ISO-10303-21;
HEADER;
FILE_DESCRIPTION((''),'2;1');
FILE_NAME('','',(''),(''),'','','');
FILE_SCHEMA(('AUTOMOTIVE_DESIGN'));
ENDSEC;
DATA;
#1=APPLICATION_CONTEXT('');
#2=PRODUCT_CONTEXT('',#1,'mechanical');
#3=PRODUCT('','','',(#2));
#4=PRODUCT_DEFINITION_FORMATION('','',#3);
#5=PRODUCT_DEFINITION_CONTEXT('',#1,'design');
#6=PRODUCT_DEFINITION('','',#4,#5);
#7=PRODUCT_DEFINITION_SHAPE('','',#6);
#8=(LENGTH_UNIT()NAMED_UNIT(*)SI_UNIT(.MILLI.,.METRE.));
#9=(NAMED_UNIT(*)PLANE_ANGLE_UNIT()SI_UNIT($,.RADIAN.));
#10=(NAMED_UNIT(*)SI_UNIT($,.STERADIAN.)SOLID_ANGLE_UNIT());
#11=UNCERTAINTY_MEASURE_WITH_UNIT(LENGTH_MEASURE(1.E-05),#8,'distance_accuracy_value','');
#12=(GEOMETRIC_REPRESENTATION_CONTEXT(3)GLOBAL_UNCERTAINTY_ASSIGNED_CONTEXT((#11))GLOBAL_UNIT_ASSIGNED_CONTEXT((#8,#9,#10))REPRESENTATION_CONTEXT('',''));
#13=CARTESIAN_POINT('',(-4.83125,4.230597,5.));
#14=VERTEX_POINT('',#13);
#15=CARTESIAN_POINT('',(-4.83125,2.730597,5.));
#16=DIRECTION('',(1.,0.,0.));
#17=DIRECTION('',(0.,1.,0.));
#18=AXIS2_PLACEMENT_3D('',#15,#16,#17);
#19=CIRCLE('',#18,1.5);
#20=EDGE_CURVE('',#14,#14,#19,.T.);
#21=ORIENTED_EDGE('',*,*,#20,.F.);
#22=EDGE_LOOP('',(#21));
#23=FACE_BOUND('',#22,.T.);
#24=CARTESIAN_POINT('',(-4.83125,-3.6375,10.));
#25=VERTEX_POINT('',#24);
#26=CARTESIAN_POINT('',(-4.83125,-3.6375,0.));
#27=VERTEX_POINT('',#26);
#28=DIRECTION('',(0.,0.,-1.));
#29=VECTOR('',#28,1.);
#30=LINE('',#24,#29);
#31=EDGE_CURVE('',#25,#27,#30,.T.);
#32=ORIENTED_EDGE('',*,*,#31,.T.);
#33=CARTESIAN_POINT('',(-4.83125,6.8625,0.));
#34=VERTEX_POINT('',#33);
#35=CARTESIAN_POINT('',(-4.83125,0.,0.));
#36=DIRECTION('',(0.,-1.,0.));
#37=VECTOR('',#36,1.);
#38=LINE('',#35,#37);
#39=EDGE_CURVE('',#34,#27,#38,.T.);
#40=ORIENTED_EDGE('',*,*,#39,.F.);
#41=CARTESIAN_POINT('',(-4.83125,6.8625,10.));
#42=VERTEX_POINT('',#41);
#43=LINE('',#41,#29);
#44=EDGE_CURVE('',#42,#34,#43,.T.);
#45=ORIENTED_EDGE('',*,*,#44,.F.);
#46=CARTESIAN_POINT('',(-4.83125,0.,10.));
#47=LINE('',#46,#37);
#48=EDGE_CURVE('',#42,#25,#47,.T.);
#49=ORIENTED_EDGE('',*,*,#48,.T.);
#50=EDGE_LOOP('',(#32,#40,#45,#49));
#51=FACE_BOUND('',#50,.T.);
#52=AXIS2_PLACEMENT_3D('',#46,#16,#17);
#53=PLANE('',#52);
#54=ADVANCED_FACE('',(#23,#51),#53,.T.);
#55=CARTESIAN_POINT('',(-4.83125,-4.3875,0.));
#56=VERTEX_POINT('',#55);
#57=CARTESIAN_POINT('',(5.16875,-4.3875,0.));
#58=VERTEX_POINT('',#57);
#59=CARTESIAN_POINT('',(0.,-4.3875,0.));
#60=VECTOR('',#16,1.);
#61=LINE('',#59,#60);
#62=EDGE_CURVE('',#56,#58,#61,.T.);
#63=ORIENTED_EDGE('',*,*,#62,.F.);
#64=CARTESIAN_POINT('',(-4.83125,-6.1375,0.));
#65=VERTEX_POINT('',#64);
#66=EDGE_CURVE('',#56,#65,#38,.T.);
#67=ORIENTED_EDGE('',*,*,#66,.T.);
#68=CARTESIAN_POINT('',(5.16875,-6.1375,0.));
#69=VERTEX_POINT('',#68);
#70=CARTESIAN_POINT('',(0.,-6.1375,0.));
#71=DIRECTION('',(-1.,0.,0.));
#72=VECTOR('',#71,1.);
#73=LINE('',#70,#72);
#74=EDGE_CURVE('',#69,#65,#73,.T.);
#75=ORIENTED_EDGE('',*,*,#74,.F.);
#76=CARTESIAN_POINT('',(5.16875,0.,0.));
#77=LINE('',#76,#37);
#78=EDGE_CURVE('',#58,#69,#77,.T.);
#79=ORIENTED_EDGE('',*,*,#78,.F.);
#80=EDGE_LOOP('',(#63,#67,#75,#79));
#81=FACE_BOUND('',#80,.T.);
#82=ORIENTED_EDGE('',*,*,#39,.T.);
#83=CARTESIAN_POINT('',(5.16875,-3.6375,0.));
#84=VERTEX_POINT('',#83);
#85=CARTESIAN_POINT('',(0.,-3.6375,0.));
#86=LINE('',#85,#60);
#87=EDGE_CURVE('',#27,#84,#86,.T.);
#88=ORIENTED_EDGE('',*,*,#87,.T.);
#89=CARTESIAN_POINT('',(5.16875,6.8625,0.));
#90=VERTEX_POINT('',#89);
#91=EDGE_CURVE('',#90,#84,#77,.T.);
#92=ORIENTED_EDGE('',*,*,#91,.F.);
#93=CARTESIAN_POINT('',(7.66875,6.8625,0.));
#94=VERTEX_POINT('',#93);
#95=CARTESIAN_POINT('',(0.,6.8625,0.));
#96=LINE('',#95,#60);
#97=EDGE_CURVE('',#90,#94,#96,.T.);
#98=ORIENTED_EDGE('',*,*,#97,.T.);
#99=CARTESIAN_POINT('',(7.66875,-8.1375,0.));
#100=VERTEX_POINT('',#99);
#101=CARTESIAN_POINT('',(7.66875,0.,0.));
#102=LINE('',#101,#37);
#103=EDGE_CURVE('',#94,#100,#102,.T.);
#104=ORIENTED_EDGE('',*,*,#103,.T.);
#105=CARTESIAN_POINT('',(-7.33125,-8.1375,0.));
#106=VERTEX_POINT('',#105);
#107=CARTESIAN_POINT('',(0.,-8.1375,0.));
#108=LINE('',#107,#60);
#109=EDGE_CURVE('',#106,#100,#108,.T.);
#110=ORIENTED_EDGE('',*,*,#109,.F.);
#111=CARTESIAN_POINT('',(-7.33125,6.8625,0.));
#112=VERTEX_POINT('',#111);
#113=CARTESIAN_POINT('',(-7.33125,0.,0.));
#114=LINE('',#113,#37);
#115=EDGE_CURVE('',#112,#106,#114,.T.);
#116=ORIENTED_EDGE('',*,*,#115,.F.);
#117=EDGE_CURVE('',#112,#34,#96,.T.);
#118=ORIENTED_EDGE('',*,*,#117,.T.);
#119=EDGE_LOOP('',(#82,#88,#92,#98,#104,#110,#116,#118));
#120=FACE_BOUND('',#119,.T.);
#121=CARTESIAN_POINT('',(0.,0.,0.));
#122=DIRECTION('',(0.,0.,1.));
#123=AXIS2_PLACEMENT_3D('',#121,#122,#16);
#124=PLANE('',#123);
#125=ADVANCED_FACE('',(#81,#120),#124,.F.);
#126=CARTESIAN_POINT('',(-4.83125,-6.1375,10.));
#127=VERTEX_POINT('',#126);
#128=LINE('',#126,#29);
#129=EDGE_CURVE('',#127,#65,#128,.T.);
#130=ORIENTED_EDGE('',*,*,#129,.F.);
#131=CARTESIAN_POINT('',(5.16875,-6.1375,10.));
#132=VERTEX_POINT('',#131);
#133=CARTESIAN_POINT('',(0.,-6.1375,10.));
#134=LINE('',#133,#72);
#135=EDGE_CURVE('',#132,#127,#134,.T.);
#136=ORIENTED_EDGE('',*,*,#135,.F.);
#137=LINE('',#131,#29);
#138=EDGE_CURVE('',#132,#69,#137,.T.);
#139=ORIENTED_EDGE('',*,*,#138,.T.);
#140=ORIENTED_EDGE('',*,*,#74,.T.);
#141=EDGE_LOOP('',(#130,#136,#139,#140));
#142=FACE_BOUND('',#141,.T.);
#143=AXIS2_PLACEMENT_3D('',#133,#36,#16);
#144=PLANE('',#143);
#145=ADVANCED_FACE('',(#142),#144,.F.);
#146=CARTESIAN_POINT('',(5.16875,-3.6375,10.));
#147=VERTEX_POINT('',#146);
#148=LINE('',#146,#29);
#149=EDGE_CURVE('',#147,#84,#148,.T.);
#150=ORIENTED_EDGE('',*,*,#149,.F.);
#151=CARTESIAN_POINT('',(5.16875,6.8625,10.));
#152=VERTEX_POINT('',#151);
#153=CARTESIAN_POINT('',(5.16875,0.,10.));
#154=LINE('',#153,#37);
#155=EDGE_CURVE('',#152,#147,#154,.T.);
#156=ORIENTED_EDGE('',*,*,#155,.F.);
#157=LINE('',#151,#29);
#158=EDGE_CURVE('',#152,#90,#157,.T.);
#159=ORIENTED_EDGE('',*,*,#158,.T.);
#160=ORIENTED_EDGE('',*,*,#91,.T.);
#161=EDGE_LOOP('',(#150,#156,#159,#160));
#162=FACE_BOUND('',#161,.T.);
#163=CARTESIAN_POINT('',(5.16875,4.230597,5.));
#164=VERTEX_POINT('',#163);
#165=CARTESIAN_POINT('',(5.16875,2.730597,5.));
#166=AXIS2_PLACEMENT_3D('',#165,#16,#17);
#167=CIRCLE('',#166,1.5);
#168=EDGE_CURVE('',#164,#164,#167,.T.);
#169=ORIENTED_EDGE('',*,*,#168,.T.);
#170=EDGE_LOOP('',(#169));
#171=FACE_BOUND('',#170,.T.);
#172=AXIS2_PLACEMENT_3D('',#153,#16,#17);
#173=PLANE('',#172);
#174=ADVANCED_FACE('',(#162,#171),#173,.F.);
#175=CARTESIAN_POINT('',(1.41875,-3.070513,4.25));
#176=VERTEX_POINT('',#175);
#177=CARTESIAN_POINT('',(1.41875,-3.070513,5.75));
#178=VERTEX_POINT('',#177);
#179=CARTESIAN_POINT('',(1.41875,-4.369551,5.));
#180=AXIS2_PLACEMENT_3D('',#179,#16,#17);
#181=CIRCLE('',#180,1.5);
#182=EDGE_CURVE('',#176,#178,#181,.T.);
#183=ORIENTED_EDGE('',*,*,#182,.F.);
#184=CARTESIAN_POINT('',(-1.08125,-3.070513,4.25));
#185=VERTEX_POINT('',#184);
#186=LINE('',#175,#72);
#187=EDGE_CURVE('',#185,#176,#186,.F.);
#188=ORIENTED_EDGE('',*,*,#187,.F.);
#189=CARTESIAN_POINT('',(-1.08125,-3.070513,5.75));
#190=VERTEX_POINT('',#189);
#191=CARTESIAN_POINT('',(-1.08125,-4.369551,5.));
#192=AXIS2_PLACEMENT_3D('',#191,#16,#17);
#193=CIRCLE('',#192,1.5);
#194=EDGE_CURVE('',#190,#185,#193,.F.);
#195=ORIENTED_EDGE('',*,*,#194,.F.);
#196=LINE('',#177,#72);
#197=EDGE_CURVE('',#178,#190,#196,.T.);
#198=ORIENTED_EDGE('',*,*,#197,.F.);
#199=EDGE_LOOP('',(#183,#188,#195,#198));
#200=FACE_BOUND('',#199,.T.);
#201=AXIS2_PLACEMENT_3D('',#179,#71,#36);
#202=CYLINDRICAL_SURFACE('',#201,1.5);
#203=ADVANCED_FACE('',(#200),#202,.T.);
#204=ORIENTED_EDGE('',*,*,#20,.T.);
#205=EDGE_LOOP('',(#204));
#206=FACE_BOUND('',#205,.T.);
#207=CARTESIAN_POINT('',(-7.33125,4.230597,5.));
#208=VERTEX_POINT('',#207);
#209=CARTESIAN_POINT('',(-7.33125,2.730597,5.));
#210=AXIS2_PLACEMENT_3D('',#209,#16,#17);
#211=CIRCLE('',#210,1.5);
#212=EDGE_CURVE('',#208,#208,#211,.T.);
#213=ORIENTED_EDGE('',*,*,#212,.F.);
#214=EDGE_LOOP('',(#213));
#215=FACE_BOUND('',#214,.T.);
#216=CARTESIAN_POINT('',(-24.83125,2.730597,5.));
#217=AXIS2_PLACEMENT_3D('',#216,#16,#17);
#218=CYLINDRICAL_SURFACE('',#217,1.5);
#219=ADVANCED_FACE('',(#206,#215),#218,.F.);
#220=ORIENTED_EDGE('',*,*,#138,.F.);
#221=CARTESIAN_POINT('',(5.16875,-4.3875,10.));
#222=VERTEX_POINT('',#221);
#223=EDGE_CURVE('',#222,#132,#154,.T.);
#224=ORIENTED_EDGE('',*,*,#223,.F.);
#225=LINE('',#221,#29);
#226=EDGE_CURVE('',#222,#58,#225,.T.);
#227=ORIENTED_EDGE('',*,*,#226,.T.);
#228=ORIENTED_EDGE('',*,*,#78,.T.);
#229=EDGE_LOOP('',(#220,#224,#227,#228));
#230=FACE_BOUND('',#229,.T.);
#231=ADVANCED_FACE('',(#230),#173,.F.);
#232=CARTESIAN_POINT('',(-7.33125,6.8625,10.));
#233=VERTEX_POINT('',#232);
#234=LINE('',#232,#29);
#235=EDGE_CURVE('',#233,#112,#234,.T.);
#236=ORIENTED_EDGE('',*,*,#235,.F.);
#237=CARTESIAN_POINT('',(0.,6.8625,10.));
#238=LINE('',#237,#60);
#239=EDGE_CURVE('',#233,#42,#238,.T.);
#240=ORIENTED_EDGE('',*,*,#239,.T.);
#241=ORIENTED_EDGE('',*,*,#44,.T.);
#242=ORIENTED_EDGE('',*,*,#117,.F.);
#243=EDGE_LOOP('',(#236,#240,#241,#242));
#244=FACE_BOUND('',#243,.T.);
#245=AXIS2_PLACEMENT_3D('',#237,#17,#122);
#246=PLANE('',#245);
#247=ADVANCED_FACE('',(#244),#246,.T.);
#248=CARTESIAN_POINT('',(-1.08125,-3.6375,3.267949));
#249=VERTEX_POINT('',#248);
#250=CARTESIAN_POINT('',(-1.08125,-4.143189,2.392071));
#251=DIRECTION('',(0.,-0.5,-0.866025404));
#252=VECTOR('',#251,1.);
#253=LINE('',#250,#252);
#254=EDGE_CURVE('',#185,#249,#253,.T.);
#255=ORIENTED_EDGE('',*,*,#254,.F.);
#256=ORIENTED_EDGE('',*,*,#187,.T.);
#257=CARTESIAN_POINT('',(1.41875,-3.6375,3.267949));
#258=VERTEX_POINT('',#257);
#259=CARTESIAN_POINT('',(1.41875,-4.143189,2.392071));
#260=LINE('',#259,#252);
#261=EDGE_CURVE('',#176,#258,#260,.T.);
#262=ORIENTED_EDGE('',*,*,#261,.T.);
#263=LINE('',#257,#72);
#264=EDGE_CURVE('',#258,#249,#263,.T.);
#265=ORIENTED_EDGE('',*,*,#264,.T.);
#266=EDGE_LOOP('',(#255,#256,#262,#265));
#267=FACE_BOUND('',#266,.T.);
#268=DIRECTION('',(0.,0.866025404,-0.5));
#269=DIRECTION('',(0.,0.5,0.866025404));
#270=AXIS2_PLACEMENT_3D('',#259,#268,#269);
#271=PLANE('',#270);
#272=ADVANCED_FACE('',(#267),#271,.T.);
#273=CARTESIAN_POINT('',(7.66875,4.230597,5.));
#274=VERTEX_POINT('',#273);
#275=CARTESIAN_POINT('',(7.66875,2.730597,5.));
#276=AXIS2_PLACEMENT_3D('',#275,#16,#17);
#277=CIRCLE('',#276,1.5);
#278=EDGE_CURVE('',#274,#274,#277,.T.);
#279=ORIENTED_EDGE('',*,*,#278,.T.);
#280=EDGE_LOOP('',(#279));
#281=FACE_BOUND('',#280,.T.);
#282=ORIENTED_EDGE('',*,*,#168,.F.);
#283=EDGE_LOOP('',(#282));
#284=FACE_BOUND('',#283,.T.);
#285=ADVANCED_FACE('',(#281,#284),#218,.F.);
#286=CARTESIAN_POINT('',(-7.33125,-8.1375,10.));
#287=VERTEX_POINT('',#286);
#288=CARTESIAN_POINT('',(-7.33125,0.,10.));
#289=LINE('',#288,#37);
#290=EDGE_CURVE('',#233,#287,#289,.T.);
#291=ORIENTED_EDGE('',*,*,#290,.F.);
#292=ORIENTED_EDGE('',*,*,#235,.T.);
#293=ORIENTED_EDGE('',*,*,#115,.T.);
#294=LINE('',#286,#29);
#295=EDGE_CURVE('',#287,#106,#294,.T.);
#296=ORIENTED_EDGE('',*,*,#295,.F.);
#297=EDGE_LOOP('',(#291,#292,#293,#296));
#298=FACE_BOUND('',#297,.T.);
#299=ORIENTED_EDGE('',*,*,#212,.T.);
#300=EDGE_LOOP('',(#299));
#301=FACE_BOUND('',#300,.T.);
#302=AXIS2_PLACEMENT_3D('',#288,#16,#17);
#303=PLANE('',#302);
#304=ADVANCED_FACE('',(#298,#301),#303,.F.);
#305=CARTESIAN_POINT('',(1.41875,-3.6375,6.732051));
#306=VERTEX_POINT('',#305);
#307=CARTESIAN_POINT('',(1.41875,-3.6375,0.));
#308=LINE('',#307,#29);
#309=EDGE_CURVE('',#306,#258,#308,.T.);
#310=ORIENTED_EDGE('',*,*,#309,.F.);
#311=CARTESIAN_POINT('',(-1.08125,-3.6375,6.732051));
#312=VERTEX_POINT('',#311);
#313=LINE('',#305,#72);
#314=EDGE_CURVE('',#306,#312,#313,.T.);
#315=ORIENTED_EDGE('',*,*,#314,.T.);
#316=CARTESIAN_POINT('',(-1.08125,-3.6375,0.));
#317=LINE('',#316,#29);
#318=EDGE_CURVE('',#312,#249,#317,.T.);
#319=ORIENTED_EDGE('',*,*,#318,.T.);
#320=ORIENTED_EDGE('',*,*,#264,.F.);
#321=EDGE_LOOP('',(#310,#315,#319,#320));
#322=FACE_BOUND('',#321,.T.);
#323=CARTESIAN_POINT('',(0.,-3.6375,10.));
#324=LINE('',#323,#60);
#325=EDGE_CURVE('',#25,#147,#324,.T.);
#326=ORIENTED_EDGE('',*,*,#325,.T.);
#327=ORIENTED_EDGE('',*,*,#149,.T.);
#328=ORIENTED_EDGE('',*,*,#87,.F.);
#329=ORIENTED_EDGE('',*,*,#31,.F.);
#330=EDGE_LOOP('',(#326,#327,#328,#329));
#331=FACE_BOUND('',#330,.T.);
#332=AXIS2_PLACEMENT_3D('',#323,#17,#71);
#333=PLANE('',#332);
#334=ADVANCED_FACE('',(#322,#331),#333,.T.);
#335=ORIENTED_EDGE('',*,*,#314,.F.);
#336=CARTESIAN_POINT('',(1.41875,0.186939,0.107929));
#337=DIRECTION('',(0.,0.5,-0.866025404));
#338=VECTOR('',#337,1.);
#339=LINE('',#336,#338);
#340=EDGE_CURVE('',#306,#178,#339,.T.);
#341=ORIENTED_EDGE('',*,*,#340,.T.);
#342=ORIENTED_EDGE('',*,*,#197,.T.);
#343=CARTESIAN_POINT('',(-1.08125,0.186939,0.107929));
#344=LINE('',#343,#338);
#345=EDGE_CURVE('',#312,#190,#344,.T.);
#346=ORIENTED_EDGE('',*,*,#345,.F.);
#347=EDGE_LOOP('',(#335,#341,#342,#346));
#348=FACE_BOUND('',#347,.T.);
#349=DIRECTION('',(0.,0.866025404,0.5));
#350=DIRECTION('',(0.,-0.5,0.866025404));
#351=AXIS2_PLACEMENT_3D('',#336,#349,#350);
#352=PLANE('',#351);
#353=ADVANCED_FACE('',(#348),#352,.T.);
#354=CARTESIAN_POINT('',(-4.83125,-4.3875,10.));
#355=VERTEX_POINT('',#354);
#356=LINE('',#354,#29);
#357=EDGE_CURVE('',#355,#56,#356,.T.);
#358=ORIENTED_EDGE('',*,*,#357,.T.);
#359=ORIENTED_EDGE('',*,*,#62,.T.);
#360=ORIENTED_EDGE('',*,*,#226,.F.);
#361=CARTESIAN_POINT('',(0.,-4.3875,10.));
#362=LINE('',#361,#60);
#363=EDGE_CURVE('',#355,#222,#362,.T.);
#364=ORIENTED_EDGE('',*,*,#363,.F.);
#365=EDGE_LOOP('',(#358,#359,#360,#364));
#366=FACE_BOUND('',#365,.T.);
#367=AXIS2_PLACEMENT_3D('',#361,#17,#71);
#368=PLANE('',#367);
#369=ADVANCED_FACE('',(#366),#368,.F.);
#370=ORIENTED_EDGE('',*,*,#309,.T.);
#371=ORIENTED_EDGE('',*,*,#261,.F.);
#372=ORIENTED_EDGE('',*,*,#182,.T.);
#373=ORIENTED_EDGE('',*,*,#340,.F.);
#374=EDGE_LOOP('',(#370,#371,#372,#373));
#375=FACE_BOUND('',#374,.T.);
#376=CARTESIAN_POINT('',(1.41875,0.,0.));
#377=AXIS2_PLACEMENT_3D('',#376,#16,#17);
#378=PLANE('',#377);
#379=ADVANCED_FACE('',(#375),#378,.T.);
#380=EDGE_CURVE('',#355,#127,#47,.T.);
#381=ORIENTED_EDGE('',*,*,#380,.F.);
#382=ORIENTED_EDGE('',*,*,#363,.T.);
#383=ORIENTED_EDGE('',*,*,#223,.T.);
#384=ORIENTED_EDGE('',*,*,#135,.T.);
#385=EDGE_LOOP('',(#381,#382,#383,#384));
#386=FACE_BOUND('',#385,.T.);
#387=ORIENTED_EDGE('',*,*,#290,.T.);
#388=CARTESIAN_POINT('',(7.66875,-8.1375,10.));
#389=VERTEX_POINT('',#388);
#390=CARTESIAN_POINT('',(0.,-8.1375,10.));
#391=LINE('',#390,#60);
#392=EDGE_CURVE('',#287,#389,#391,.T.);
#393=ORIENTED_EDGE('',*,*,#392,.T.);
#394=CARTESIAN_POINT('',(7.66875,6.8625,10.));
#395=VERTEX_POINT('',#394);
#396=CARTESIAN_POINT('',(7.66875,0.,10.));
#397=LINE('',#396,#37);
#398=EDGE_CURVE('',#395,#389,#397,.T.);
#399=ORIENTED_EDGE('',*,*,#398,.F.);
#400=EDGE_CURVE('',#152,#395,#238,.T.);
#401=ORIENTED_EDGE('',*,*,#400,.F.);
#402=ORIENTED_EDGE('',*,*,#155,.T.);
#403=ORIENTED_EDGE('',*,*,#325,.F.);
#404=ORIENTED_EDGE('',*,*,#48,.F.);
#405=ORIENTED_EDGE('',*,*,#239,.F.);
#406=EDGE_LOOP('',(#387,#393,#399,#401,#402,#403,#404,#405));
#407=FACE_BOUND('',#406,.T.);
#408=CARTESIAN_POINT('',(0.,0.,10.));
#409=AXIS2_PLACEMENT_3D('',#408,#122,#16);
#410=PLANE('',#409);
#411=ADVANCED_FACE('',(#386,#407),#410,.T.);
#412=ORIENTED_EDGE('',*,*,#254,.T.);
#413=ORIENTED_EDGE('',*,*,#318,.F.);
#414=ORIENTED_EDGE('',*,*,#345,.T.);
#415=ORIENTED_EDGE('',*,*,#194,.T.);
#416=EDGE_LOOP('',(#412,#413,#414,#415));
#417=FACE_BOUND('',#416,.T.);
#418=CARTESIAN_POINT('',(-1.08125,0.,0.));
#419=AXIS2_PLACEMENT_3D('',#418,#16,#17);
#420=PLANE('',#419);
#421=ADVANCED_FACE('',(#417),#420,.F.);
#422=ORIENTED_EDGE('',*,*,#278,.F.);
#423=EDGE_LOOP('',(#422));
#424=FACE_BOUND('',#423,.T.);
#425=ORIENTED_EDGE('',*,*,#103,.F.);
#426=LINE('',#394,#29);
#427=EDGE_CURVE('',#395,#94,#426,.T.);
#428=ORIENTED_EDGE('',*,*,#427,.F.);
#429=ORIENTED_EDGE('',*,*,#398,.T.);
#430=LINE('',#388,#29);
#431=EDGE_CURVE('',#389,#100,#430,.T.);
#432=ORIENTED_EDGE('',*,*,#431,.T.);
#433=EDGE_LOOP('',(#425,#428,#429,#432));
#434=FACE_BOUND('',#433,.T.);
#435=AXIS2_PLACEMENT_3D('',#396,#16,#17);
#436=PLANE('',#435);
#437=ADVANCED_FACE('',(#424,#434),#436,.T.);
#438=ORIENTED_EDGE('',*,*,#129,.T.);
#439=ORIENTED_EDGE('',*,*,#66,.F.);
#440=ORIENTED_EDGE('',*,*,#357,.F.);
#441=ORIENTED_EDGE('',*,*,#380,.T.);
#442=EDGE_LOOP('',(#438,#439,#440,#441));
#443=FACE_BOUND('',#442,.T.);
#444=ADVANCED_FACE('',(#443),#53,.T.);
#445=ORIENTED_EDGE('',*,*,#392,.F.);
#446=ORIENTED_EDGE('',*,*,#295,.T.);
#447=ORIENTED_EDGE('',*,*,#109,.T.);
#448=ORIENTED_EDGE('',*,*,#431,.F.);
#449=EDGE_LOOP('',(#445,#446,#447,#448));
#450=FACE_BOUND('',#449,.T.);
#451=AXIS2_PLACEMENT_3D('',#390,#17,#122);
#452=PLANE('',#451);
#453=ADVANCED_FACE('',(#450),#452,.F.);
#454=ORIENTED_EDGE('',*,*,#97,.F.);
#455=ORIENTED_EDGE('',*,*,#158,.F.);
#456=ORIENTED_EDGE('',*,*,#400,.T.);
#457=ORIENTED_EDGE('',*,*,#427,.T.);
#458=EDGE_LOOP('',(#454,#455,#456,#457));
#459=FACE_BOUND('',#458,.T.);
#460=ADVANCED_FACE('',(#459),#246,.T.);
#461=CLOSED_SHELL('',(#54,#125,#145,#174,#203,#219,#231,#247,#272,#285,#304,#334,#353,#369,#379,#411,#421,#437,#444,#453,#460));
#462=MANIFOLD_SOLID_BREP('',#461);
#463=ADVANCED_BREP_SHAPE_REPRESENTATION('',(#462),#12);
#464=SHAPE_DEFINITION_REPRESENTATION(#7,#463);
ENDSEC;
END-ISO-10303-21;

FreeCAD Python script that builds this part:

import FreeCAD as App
import Part
import Sketcher
Q = App.Units.Quantity


def edges_at(feature, points):
    """Names of the edges that pass closest to the given points."""
    edges = feature.Shape.Edges
    near = lambda p: min(range(len(edges)), key=lambda i: edges[i].distToShape(Part.Vertex(*p))[0])
    return sorted({f"Edge{near(p) + 1}" for p in points})


def add_polygon(sketch, points):
    """Adds a closed chain of lines whose ends are joined by coincident constraints."""
    first, n = sketch.GeometryCount, len(points)
    for a, b in zip(points, points[1:] + points[:1]):
        sketch.addGeometry(Part.LineSegment(App.Vector(*a, 0), App.Vector(*b, 0)), False)
    for i in range(n):
        sketch.addConstraint(Sketcher.Constraint("Coincident", first + i, 2, first + (i + 1) % n, 1))

doc = App.newDocument("Part")
body = doc.addObject("PartDesign::Body", "Body")

# Sketch on XY plane
sketch1 = body.newObject("Sketcher::SketchObject", "Sketch")
sketch1.AttachmentSupport = (doc.getObject("XY_Plane"), [""])
sketch1.MapMode = "FlatFace"
add_polygon(sketch1, [(-4.8, 6.9), (-7.3, 6.9), (-7.3, -8.1), (7.7, -8.1), (7.7, 6.9), (5.2, 6.9), (5.2, -3.6), (-4.8, -3.6)])  # lines 0-7
add_polygon(sketch1, [(5.2, -4.4), (5.2, -6.1), (-4.8, -6.1), (-4.8, -4.4)])  # lines 8-11
sketch1.addConstraint([
    Sketcher.Constraint("Horizontal", 0),
    Sketcher.Constraint("Vertical", 1),
    Sketcher.Constraint("Horizontal", 2),
    Sketcher.Constraint("Vertical", 3),
    Sketcher.Constraint("Horizontal", 4),
    Sketcher.Constraint("Vertical", 5),
    Sketcher.Constraint("Horizontal", 6),
    Sketcher.Constraint("Vertical", 7),
    Sketcher.Constraint("Vertical", 8),
    Sketcher.Constraint("Horizontal", 9),
    Sketcher.Constraint("Vertical", 10),
    Sketcher.Constraint("Horizontal", 11),
    Sketcher.Constraint("Horizontal", 0, 2, 3, 2),
    Sketcher.Constraint("Vertical", 5, 2, 8, 2),
    Sketcher.Constraint("Vertical", 7, 2, 9, 2),
    Sketcher.Constraint("Equal", 0, 4),
    Sketcher.Constraint("Equal", 2, 1),
    Sketcher.Constraint("DistanceX", 2, 1, 2, 2, 15.0),
    Sketcher.Constraint("DistanceX", 6, 2, 6, 1, 10.0),
    Sketcher.Constraint("DistanceY", 5, 2, 5, 1, 10.5),
    Sketcher.Constraint("DistanceY", 2, 2, 8, 2, 2.0),
    Sketcher.Constraint("DistanceY", 8, 2, 8, 1, 1.75),
    Sketcher.Constraint("DistanceY", -1, 1, 0, 2, 6.8625),
    Sketcher.Constraint("DistanceX", 0, 2, -1, 1, 7.33125),
])
pad1 = body.newObject("PartDesign::Pad", "Pad")
pad1.Profile = sketch1
pad1.Length = 10

# Sketch on YZ plane
sketch2 = body.newObject("Sketcher::SketchObject", "Sketch001")
sketch2.AttachmentSupport = (doc.getObject("YZ_Plane"), [""])
sketch2.MapMode = "FlatFace"
sketch2.AttachmentOffset = App.Placement(App.Vector(0, 0, 0.16875), App.Rotation())
add_polygon(sketch2, [(-2.6, 5), (-3.6, 6.7), (-3.6, 3.3)])  # lines 0-2
sketch2.addConstraint([
    Sketcher.Constraint("Vertical", 1),
    Sketcher.Constraint("Equal", 0, 2),
    Sketcher.Constraint("Angle", 0, Q("120 deg")),
    Sketcher.Constraint("Distance", 0, 2.0),
    Sketcher.Constraint("DistanceY", -1, 1, 2, 2, 5.0),
    Sketcher.Constraint("DistanceX", 0, 2, -1, 1, 3.6375),
])
pad2 = body.newObject("PartDesign::Pad", "Pad001")
pad2.Profile = sketch2
pad2.Length = 2.5
pad2.Midplane = True

# Sketch on YZ plane
sketch3 = body.newObject("Sketcher::SketchObject", "Sketch002")
sketch3.AttachmentSupport = (doc.getObject("YZ_Plane"), [""])
sketch3.MapMode = "FlatFace"
sketch3.AttachmentOffset = App.Placement(App.Vector(0, 0, 0.16875), App.Rotation())
sketch3.addGeometry(Part.Circle(App.Vector(2.7, 5, 0), App.Vector(0, 0, 1), 1.5), False)
sketch3.addConstraint([
    Sketcher.Constraint("Diameter", 0, 3.0),
    Sketcher.Constraint("DistanceY", -1, 1, 0, 3, 5.0),
    Sketcher.Constraint("DistanceX", -1, 1, 0, 3, 2.730597),
])
pocket1 = body.newObject("PartDesign::Pocket", "Pocket")
pocket1.Profile = sketch3
pocket1.Length = 50
pocket1.Midplane = True
doc.recompute()

fillet = body.newObject("PartDesign::Fillet", "Fillet")
fillet.Base = (pocket1, edges_at(pocket1, [(0.169, -2.638, 5)]))
fillet.Radius = 1.5

doc.recompute()
